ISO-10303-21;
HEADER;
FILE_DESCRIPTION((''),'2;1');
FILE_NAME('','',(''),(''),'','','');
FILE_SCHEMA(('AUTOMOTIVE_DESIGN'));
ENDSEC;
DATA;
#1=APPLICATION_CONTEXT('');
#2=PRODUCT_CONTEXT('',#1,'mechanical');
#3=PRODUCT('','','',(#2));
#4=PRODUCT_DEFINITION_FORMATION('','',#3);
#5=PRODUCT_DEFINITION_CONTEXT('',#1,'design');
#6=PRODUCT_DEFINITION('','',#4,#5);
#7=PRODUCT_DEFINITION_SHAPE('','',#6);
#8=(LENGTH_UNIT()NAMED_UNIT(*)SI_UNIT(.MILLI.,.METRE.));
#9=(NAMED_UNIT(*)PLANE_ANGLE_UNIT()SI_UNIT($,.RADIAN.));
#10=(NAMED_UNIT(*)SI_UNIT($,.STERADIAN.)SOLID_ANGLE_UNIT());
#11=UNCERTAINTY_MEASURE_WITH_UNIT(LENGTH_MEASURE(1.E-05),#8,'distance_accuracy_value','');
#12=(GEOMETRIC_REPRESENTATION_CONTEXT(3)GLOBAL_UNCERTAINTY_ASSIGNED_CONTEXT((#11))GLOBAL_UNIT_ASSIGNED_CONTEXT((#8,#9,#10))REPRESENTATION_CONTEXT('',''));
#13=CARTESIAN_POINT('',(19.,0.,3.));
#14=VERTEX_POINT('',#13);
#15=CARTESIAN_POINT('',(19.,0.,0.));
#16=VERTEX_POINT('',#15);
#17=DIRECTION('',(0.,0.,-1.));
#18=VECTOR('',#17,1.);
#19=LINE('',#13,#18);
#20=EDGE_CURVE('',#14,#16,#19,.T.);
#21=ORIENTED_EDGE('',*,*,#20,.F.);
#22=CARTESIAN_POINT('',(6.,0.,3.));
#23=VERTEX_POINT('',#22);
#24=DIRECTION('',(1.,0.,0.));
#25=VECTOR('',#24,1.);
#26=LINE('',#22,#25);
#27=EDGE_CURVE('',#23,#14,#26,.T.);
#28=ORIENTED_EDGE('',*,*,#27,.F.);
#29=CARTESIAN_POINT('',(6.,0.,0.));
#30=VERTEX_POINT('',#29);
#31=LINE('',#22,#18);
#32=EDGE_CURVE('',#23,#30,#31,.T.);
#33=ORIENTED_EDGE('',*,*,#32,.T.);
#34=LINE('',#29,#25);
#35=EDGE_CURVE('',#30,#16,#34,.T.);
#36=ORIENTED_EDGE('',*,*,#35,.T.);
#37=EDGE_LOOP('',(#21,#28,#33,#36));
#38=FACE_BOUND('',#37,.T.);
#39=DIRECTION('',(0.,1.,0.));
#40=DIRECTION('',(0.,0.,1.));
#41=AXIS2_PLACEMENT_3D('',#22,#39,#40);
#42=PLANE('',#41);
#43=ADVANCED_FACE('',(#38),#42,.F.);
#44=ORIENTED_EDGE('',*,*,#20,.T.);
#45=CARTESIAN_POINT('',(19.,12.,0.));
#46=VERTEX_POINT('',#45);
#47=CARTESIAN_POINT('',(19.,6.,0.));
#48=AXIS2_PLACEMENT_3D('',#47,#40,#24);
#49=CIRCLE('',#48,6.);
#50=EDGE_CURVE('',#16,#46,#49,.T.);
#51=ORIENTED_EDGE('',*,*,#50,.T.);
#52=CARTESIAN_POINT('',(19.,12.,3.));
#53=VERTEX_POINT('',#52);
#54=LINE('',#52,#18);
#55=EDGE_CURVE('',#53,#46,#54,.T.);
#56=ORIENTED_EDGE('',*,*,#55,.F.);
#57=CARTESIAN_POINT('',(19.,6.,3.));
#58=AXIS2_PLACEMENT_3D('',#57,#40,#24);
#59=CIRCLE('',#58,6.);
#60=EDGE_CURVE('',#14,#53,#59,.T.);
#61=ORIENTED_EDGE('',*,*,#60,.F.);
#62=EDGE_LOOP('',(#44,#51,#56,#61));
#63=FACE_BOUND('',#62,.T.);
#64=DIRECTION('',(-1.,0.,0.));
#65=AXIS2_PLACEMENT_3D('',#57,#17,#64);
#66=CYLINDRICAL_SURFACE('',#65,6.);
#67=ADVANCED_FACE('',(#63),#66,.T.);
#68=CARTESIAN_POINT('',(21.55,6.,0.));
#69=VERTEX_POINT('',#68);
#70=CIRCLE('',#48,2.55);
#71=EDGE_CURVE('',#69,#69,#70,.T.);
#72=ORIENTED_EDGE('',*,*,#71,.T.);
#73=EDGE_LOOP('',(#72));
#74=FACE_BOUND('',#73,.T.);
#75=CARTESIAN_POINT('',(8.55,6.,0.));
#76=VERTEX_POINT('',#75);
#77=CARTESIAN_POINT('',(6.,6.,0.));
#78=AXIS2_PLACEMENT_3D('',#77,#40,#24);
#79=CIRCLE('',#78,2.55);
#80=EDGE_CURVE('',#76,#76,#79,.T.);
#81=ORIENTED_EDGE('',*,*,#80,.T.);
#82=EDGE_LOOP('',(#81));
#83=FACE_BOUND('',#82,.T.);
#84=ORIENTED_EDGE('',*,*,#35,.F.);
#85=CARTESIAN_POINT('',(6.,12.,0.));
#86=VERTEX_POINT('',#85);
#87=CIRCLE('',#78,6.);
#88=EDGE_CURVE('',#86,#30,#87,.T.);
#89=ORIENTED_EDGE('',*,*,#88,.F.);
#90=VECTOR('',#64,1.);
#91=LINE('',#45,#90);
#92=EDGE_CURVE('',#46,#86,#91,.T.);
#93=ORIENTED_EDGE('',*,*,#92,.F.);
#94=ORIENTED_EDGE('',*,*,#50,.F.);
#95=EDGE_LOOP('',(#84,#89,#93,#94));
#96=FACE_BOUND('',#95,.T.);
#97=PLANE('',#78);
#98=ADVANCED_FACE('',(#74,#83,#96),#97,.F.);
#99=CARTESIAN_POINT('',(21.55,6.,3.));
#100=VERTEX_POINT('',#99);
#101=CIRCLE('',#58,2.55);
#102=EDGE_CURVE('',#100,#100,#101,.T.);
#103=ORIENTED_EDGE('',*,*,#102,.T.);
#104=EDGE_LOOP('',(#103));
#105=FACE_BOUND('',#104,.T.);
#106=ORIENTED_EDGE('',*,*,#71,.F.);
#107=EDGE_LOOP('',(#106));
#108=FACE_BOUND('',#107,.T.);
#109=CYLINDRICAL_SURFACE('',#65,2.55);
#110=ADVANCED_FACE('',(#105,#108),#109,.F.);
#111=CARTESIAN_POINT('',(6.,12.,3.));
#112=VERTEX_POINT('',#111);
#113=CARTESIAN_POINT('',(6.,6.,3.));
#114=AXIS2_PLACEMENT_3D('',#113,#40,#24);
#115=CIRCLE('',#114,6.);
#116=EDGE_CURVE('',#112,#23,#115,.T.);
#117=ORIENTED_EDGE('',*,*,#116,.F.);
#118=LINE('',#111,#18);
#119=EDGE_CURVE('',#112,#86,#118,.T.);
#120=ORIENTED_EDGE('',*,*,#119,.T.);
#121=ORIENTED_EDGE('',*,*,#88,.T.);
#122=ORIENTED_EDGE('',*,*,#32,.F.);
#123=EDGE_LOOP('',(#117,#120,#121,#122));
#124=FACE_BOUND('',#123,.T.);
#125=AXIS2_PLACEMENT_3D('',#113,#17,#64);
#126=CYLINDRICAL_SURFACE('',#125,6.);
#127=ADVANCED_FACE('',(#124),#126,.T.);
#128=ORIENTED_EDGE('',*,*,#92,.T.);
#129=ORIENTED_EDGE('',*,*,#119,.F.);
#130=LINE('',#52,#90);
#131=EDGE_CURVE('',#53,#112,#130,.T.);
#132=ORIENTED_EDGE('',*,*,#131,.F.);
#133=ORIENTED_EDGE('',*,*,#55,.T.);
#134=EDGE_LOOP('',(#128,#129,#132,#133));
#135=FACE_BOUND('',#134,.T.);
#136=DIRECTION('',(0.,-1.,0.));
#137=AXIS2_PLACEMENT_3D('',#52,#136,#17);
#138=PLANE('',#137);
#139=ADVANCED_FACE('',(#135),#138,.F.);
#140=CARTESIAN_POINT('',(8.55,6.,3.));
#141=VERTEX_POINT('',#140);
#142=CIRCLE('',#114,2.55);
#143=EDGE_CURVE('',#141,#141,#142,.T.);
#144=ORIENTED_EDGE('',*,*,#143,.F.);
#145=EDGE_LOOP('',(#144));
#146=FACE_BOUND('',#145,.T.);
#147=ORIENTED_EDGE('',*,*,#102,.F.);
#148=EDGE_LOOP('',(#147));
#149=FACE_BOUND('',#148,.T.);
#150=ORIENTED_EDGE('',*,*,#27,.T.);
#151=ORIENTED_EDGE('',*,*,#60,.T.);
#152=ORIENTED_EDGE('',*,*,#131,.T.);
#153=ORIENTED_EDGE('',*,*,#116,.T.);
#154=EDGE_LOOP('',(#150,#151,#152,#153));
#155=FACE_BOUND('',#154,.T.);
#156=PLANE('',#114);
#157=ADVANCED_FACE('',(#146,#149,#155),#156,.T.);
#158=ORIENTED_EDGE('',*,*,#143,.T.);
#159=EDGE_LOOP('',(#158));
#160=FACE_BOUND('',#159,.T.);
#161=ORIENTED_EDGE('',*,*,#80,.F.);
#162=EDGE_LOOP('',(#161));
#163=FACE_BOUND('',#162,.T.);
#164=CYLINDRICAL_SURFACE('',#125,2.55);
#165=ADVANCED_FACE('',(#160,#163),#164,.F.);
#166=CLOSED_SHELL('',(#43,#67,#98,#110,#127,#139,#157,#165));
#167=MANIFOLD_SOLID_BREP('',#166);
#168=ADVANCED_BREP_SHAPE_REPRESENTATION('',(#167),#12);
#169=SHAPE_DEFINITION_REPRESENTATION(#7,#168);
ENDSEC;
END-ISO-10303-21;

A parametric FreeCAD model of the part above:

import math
import FreeCAD as App
import Part
import Sketcher

V = App.Vector

doc = App.newDocument("Part")
body = doc.addObject("PartDesign::Body", "Body")

sketch1 = doc.addObject("Sketcher::SketchObject", "Sketch")
body.addObject(sketch1)
sketch1.AttachmentSupport = (doc.XY_Plane, [""])
sketch1.MapMode = "FlatFace"
sketch1.addGeometry(Part.LineSegment(V(19, 12, 0), V(6, 12, 0)), False)
sketch1.addGeometry(Part.ArcOfCircle(Part.Circle(V(6, 6, 0), V(0, 0, 1), 6), math.radians(90), math.radians(270)), False)
sketch1.addGeometry(Part.LineSegment(V(6, 0, 0), V(19, 0, 0)), False)
sketch1.addGeometry(Part.ArcOfCircle(Part.Circle(V(19, 6, 0), V(0, 0, 1), 6), math.radians(-90), math.radians(90)), False)
sketch1.addGeometry(Part.Circle(V(6, 6, 0), V(0, 0, 1), 2.55), False)
sketch1.addGeometry(Part.Circle(V(19, 6, 0), V(0, 0, 1), 2.55), False)
sketch1.addConstraint(Sketcher.Constraint("Tangent", 0, 2, 1, 1))
sketch1.addConstraint(Sketcher.Constraint("Tangent", 1, 2, 2, 1))
sketch1.addConstraint(Sketcher.Constraint("Tangent", 2, 2, 3, 1))
sketch1.addConstraint(Sketcher.Constraint("Tangent", 3, 2, 0, 1))
sketch1.addConstraint(Sketcher.Constraint("Horizontal", 0))
sketch1.addConstraint(Sketcher.Constraint("Horizontal", 2))
sketch1.addConstraint(Sketcher.Constraint("Coincident", 4, 3, 1, 3))
sketch1.addConstraint(Sketcher.Constraint("Coincident", 5, 3, 3, 3))
sketch1.addConstraint(Sketcher.Constraint("Equal", 4, 5))
sketch1.addConstraint(Sketcher.Constraint("PointOnObject", 1, 2, -1))
sketch1.addConstraint(Sketcher.Constraint("Radius", 1, 6.0))
sketch1.addConstraint(Sketcher.Constraint("Diameter", 4, 5.1))
sketch1.addConstraint(Sketcher.Constraint("DistanceX", 0, 2, 0, 1, 13.0))
sketch1.addConstraint(Sketcher.Constraint("DistanceX", -1, 1, 1, 3, 6.0))
pad1 = doc.addObject("PartDesign::Pad", "Pad")
body.addObject(pad1)
pad1.Profile = sketch1
pad1.Length = 3

doc.recompute()
